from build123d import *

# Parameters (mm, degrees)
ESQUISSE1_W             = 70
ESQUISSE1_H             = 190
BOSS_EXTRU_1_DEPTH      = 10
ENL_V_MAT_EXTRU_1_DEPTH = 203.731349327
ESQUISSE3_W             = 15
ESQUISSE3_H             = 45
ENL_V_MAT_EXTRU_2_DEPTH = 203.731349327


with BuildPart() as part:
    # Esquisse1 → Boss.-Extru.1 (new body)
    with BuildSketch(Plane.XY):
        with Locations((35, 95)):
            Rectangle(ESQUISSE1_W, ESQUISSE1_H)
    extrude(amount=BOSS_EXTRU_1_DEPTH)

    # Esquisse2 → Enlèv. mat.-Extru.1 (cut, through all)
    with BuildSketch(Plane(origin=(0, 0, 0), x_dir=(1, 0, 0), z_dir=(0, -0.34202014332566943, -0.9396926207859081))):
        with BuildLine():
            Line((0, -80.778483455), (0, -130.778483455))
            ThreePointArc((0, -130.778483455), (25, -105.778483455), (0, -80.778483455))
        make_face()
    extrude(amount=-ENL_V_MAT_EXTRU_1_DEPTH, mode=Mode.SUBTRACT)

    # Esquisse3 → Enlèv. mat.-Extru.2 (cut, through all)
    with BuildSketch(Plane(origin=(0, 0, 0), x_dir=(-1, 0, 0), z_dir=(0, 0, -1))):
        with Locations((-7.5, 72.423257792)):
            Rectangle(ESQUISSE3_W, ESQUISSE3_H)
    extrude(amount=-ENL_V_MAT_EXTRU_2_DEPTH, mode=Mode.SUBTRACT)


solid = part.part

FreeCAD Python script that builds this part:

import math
import FreeCAD as App
import Part
import Sketcher

V = App.Vector


def add_polygon(sketch, points):
    """Adds a closed chain of lines whose ends are joined by coincident constraints."""
    first, n = sketch.GeometryCount, len(points)
    for a, b in zip(points, points[1:] + points[:1]):
        sketch.addGeometry(Part.LineSegment(App.Vector(*a, 0), App.Vector(*b, 0)), False)
    for i in range(n):
        sketch.addConstraint(Sketcher.Constraint("Coincident", first + i, 2, first + (i + 1) % n, 1))

doc = App.newDocument("Part")
body = doc.addObject("PartDesign::Body", "Body")

# Sketch on XY plane
sketch1 = body.newObject("Sketcher::SketchObject", "Sketch")
sketch1.AttachmentSupport = (doc.getObject("XY_Plane"), [""])
sketch1.MapMode = "FlatFace"
add_polygon(sketch1, [(0, 190), (0, 0), (70, 0), (70, 190)])  # lines 0-3
sketch1.addConstraint([
    Sketcher.Constraint("Vertical", 0),
    Sketcher.Constraint("Horizontal", 1),
    Sketcher.Constraint("Vertical", 2),
    Sketcher.Constraint("Horizontal", 3),
    Sketcher.Constraint("Coincident", 0, 2, -1, 1),
    Sketcher.Constraint("DistanceX", 1, 1, 1, 2, 70.0),
    Sketcher.Constraint("DistanceY", 0, 2, 0, 1, 190.0),
])
pad1 = body.newObject("PartDesign::Pad", "Pad")
pad1.Profile = sketch1
pad1.Length = 10

# Sketch on an angled plane
sketch2 = body.newObject("Sketcher::SketchObject", "Sketch001")
sketch2.Placement = App.Placement(V(0, 0, 0), App.Rotation(V(1, 0, 0), V(0, -0.939692621, 0.342020143), V(0, -0.342020143, -0.939692621), "ZXY"))
sketch2.addGeometry([
    Part.LineSegment(V(0, -81, 0), V(0, -131, 0)),
    Part.ArcOfCircle(Part.Circle(V(0, -106, 0), V(0, 0, 1), 25), math.radians(-90), math.radians(90)),
], False)
sketch2.addConstraint([
    Sketcher.Constraint("Coincident", 0, 1, 1, 2),
    Sketcher.Constraint("Coincident", 1, 1, 0, 2),
    Sketcher.Constraint("Vertical", 0),
    Sketcher.Constraint("PointOnObject", 1, 3, -2),
    Sketcher.Constraint("PointOnObject", 0, 1, -2),
    Sketcher.Constraint("Radius", 1, 25.0),
    Sketcher.Constraint("DistanceY", 1, 3, -1, 1, 105.778483),
])
pocket1 = body.newObject("PartDesign::Pocket", "Pocket")
pocket1.Profile = sketch2
pocket1.Type = "ThroughAll"

# Sketch on XY plane
sketch3 = body.newObject("Sketcher::SketchObject", "Sketch002")
sketch3.AttachmentSupport = (doc.getObject("XY_Plane"), [""])
sketch3.MapMode = "FlatFace"
add_polygon(sketch3, [(15, 95), (15, 50), (0, 50), (0, 95)])  # lines 0-3
sketch3.addConstraint([
    Sketcher.Constraint("Vertical", 0),
    Sketcher.Constraint("Horizontal", 1),
    Sketcher.Constraint("Vertical", 2),
    Sketcher.Constraint("Horizontal", 3),
    Sketcher.Constraint("PointOnObject", 1, 2, -2),
    Sketcher.Constraint("DistanceX", 1, 2, 1, 1, 15.0),
    Sketcher.Constraint("DistanceY", 0, 2, 0, 1, 45.0),
    Sketcher.Constraint("DistanceY", -1, 1, 0, 2, 49.923258),
])
pocket2 = body.newObject("PartDesign::Pocket", "Pocket001")
pocket2.Profile = sketch3
pocket2.Type = "ThroughAll"
pocket2.Reversed = True

doc.recompute()
